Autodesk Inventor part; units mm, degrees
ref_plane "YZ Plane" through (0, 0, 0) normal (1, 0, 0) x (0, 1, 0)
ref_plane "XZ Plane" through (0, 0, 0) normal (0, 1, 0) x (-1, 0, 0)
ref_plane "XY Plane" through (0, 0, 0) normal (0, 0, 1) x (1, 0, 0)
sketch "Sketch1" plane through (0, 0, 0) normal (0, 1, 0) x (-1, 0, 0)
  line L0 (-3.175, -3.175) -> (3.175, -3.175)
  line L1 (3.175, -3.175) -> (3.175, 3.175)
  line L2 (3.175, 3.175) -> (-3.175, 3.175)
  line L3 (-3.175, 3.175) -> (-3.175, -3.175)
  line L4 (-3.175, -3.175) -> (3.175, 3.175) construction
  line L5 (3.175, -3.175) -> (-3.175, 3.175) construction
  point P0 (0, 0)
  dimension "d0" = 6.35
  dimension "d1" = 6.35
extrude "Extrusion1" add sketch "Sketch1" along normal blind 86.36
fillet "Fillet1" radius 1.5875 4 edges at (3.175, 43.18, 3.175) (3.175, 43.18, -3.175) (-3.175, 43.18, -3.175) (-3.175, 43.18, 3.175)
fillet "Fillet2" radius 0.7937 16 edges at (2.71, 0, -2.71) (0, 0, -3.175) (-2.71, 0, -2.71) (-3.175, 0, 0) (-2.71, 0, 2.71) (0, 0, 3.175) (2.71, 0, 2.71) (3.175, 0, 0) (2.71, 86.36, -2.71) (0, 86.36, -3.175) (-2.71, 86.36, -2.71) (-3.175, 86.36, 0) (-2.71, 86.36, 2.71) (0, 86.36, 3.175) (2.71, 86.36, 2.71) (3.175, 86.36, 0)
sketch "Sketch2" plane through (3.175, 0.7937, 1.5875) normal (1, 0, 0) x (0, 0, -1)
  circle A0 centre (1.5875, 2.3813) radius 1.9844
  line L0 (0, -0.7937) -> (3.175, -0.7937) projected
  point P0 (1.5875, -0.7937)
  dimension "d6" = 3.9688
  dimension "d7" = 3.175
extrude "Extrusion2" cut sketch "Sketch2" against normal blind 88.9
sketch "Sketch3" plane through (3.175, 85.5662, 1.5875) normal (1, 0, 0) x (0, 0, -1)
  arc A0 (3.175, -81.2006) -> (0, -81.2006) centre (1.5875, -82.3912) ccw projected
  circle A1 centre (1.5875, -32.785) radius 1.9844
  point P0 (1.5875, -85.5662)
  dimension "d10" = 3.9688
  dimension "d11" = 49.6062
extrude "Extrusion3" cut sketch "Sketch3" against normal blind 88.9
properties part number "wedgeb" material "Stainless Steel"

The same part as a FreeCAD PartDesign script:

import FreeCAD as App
import Part
import Sketcher
from FreeCAD import Vector
Q = App.Units.Quantity


def edges_at(feature, points):
    """Names of the edges that pass closest to the given points."""
    edges = feature.Shape.Edges
    near = lambda p: min(range(len(edges)), key=lambda i: edges[i].distToShape(Part.Vertex(*p))[0])
    return sorted({f"Edge{near(p) + 1}" for p in points})


def add_polygon(sketch, points):
    """Adds a closed chain of lines whose ends are joined by coincident constraints."""
    first, n = sketch.GeometryCount, len(points)
    for a, b in zip(points, points[1:] + points[:1]):
        sketch.addGeometry(Part.LineSegment(App.Vector(*a, 0), App.Vector(*b, 0)), False)
    for i in range(n):
        sketch.addConstraint(Sketcher.Constraint("Coincident", first + i, 2, first + (i + 1) % n, 1))

doc = App.newDocument("Part")
body = doc.addObject("PartDesign::Body", "Body")

# Sketch on XZ plane
sketch1 = doc.addObject("Sketcher::SketchObject", "Sketch")
body.addObject(sketch1)
sketch1.AttachmentSupport = (doc.XZ_Plane, [""])
sketch1.MapMode = "FlatFace"
add_polygon(sketch1, [(3, 3), (3, -3), (-3, -3), (-3, 3)])  # lines 0-3
sketch1.addConstraint([
    Sketcher.Constraint("Vertical", 0),
    Sketcher.Constraint("Horizontal", 1),
    Sketcher.Constraint("Vertical", 2),
    Sketcher.Constraint("Horizontal", 3),
    Sketcher.Constraint("Symmetric", 0, 2, 2, 2, -1, 1),
    Sketcher.Constraint("Equal", 3, 0),
    Sketcher.Constraint("DistanceX", 1, 2, 1, 1, Q("0.25 in")),
])
pad1 = doc.addObject("PartDesign::Pad", "Pad")
body.addObject(pad1)
pad1.Profile = sketch1
pad1.Length = Q("3.4 in")
pad1.Reversed = True
doc.recompute()

fillet = doc.addObject("PartDesign::Fillet", "Fillet")
body.addObject(fillet)
fillet.Base = (pad1, edges_at(pad1, [
    (3.175, 43.18, 3.175),
    (3.175, 43.18, -3.175),
    (-3.175, 43.18, -3.175),
    (-3.175, 43.18, 3.175),
]))
fillet.Radius = Q("0.0625 in")
doc.recompute()

fillet2 = doc.addObject("PartDesign::Fillet", "Fillet001")
body.addObject(fillet2)
fillet2.Base = (fillet, edges_at(fillet, [
    (2.71, 0, -2.71),
    (0, 0, -3.175),
    (-2.71, 0, -2.71),
    (-3.175, 0, 0),
    (-2.71, 0, 2.71),
    (0, 0, 3.175),
    (2.71, 0, 2.71),
    (3.175, 0, 0),
    (2.71, 86.36, -2.71),
    (0, 86.36, -3.175),
    (-2.71, 86.36, -2.71),
    (-3.175, 86.36, 0),
    (-2.71, 86.36, 2.71),
    (0, 86.36, 3.175),
    (2.71, 86.36, 2.71),
    (3.175, 86.36, 0),
]))
fillet2.Radius = Q("0.031248 in")

# Sketch on YZ plane
sketch2 = doc.addObject("Sketcher::SketchObject", "Sketch001")
body.addObject(sketch2)
sketch2.AttachmentSupport = (doc.YZ_Plane, [""])
sketch2.MapMode = "FlatFace"
sketch2.AttachmentOffset = App.Placement(Vector(0, 0, 0.125 * 25.4), App.Rotation())
sketch2.addGeometry(Part.Circle(Vector(3.2, 0, 0), Vector(0, 0, 1), 2), False)
sketch2.addConstraint([
    Sketcher.Constraint("PointOnObject", 0, 3, -1),
    Sketcher.Constraint("Diameter", 0, Q("0.156252 in")),
    Sketcher.Constraint("DistanceX", -1, 1, 0, 3, Q("0.125 in")),
])
pocket1 = doc.addObject("PartDesign::Pocket", "Pocket")
body.addObject(pocket1)
pocket1.Profile = sketch2
pocket1.Length = Q("3.5 in")

# Sketch on YZ plane
sketch3 = doc.addObject("Sketcher::SketchObject", "Sketch002")
body.addObject(sketch3)
sketch3.AttachmentSupport = (doc.YZ_Plane, [""])
sketch3.MapMode = "FlatFace"
sketch3.AttachmentOffset = App.Placement(Vector(0, 0, 0.125 * 25.4), App.Rotation())
sketch3.addGeometry(Part.Circle(Vector(52.8, 0, 0), Vector(0, 0, 1), 2), False)
sketch3.addConstraint([
    Sketcher.Constraint("PointOnObject", 0, 3, -1),
    Sketcher.Constraint("Diameter", 0, Q("0.156252 in")),
    Sketcher.Constraint("DistanceX", -1, 1, 0, 3, Q("2.078 in")),
])
pocket2 = doc.addObject("PartDesign::Pocket", "Pocket001")
body.addObject(pocket2)
pocket2.Profile = sketch3
pocket2.Length = Q("3.5 in")

doc.recompute()
